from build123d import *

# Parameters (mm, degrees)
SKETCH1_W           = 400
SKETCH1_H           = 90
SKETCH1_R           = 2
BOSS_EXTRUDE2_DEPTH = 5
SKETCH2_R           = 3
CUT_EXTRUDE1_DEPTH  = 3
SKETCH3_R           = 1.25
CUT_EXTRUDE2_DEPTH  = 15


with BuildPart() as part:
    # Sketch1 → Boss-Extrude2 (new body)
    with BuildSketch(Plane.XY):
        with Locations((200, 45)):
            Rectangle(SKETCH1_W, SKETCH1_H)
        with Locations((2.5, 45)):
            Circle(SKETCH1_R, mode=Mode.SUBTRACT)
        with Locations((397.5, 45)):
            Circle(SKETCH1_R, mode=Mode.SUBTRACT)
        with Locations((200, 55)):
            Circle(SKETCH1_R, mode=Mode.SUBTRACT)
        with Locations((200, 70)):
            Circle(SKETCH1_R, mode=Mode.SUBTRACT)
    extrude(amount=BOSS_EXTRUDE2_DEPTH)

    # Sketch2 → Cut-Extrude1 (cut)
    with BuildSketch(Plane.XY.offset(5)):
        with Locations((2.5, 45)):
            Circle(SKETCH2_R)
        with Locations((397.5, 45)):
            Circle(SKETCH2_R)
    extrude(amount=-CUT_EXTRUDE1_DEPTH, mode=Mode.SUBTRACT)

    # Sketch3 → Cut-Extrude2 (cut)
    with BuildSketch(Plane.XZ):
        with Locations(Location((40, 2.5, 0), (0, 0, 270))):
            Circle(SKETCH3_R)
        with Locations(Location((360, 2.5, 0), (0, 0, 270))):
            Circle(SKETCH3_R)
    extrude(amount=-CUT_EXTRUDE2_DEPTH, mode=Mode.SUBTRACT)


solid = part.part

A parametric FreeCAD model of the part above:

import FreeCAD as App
import Part
import Sketcher
from FreeCAD import Vector

doc = App.newDocument("Part")
params = doc.addObject("Spreadsheet::Sheet", "Params")
for row, (alias, value) in enumerate([
    ("sketch1_diameter", "4 mm"),
    ("sketch1_width", "400 mm"),
    ("sketch1_height", "90 mm"),
    ("pad1_length", "5 mm"),
    ("sketch2_diameter", "6 mm"),
    ("pocket1_length", "3 mm"),
    ("sketch3_diameter", "2.5 mm"),
    ("pocket2_length", "15 mm"),
], start=1):
    params.set(f"A{row}", alias)
    params.set(f"B{row}", "=" + value)
    params.setAlias(f"B{row}", alias)

body = doc.addObject("PartDesign::Body", "Body")

sketch1 = body.newObject("Sketcher::SketchObject", "Sketch")
sketch1.AttachmentSupport = (doc.getObject("XY_Plane"), [""])
sketch1.MapMode = "FlatFace"
sketch1.addGeometry([
    Part.LineSegment(Vector(0, 90, 0), Vector(0, 0, 0)),
    Part.LineSegment(Vector(0, 0, 0), Vector(400, 0, 0)),
    Part.LineSegment(Vector(400, 0, 0), Vector(400, 90, 0)),
    Part.LineSegment(Vector(400, 90, 0), Vector(0, 90, 0)),
    Part.Circle(Vector(2.5, 45, 0), Vector(0, 0, 1), 2),
    Part.Circle(Vector(397.5, 45, 0), Vector(0, 0, 1), 2),
    Part.Circle(Vector(200, 55, 0), Vector(0, 0, 1), 2),
    Part.Circle(Vector(200, 70, 0), Vector(0, 0, 1), 2),
], False)
sketch1.addConstraint([
    Sketcher.Constraint("Coincident", 0, 2, 1, 1),
    Sketcher.Constraint("Coincident", 1, 2, 2, 1),
    Sketcher.Constraint("Coincident", 2, 2, 3, 1),
    Sketcher.Constraint("Coincident", 3, 2, 0, 1),
    Sketcher.Constraint("Vertical", 0),
    Sketcher.Constraint("Horizontal", 1),
    Sketcher.Constraint("Vertical", 2),
    Sketcher.Constraint("Horizontal", 3),
    Sketcher.Constraint("Coincident", 0, 2, -1, 1),
    Sketcher.Constraint("Equal", 4, 5),
    Sketcher.Constraint("Equal", 5, 6),
    Sketcher.Constraint("Equal", 6, 7),
    Sketcher.Constraint("Horizontal", 4, 3, 5, 3),
    Sketcher.Constraint("Vertical", 6, 3, 7, 3),
    Sketcher.Constraint("Diameter", 4, 4.0),
    Sketcher.Constraint("DistanceX", 1, 1, 1, 2, 400.0),
    Sketcher.Constraint("DistanceY", 0, 2, 0, 1, 90.0),
    Sketcher.Constraint("DistanceY", -1, 1, 4, 3, 45.0),
    Sketcher.Constraint("DistanceX", -1, 1, 6, 3, 200.0),
    Sketcher.Constraint("DistanceY", -1, 1, 6, 3, 55.0),
    Sketcher.Constraint("DistanceY", -1, 1, 7, 3, 70.0),
    Sketcher.Constraint("DistanceX", 4, 3, 5, 3, 395.0),
    Sketcher.Constraint("DistanceX", -1, 1, 4, 3, 2.5),
])
sketch1.setExpression("Constraints[14]", "Params.sketch1_diameter")
sketch1.setExpression("Constraints[15]", "Params.sketch1_width")
sketch1.setExpression("Constraints[16]", "Params.sketch1_height")
pad1 = body.newObject("PartDesign::Pad", "Pad")
pad1.Profile = sketch1
pad1.setExpression("Length", "Params.pad1_length")

sketch2 = body.newObject("Sketcher::SketchObject", "Sketch001")
sketch2.AttachmentSupport = (doc.getObject("XY_Plane"), [""])
sketch2.MapMode = "FlatFace"
sketch2.AttachmentOffset = App.Placement(Vector(0, 0, 5), App.Rotation())
sketch2.addGeometry([
    Part.Circle(Vector(2.5, 45, 0), Vector(0, 0, 1), 3),
    Part.Circle(Vector(397.5, 45, 0), Vector(0, 0, 1), 3),
], False)
sketch2.addConstraint([
    Sketcher.Constraint("Equal", 0, 1),
    Sketcher.Constraint("Horizontal", 0, 3, 1, 3),
    Sketcher.Constraint("Diameter", 0, 6.0),
    Sketcher.Constraint("DistanceY", -1, 1, 0, 3, 45.0),
    Sketcher.Constraint("DistanceX", 0, 3, 1, 3, 395.0),
    Sketcher.Constraint("DistanceX", -1, 1, 0, 3, 2.5),
])
sketch2.setExpression("Constraints[2]", "Params.sketch2_diameter")
pocket1 = body.newObject("PartDesign::Pocket", "Pocket")
pocket1.Profile = sketch2
pocket1.setExpression("Length", "Params.pocket1_length")

sketch3 = body.newObject("Sketcher::SketchObject", "Sketch002")
sketch3.AttachmentSupport = (doc.getObject("XZ_Plane"), [""])
sketch3.MapMode = "FlatFace"
sketch3.addGeometry([
    Part.Circle(Vector(40, 2.5, 0), Vector(0, 0, 1), 1.2),
    Part.Circle(Vector(360, 2.5, 0), Vector(0, 0, 1), 1.2),
], False)
sketch3.addConstraint([
    Sketcher.Constraint("Equal", 0, 1),
    Sketcher.Constraint("Horizontal", 0, 3, 1, 3),
    Sketcher.Constraint("Diameter", 0, 2.5),
    Sketcher.Constraint("DistanceX", -1, 1, 0, 3, 40.0),
    Sketcher.Constraint("DistanceX", -1, 1, 1, 3, 360.0),
    Sketcher.Constraint("DistanceY", -1, 1, 0, 3, 2.5),
])
sketch3.setExpression("Constraints[2]", "Params.sketch3_diameter")
pocket2 = body.newObject("PartDesign::Pocket", "Pocket001")
pocket2.Profile = sketch3
pocket2.setExpression("Length", "Params.pocket2_length")

doc.recompute()
